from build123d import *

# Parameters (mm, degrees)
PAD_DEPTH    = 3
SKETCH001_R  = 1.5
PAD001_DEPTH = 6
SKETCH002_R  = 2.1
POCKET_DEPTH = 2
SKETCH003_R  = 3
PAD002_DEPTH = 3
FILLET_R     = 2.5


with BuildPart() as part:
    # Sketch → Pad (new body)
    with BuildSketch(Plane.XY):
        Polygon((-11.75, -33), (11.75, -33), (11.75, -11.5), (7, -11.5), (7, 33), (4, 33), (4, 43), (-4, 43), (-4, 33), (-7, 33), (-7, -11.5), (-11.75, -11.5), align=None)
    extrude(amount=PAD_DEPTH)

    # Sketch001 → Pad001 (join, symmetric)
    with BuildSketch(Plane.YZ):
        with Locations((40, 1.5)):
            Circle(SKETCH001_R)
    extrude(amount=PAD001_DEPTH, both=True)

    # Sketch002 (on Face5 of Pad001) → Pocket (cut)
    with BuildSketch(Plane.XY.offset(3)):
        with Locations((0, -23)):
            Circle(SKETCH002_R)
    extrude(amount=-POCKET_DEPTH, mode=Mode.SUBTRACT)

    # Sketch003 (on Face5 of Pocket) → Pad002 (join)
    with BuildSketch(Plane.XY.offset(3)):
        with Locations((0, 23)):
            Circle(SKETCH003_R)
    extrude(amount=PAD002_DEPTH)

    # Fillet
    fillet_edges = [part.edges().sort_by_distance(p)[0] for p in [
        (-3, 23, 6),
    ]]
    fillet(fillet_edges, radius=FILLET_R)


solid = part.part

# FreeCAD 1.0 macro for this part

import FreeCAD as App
import Part
import Sketcher
from FreeCAD import Vector
Q = App.Units.Quantity


def edges_at(feature, points):
    """Names of the edges that pass closest to the given points."""
    edges = feature.Shape.Edges
    near = lambda p: min(range(len(edges)), key=lambda i: edges[i].distToShape(Part.Vertex(*p))[0])
    return sorted({f"Edge{near(p) + 1}" for p in points})

doc = App.newDocument("Part")
body = doc.addObject("PartDesign::Body", "Body")

sketch1 = body.newObject("Sketcher::SketchObject", "Sketch")
sketch1.AttachmentSupport = (doc.getObject("XY_Plane"), [""])
sketch1.MapMode = "FlatFace"
sketch1.addGeometry([
    Part.LineSegment(Vector(-11.8, -33, 0), Vector(11.8, -33, 0)),
    Part.LineSegment(Vector(11.8, -33, 0), Vector(11.8, -11.5, 0)),
    Part.LineSegment(Vector(11.8, -11.5, 0), Vector(7, -11.5, 0)),
    Part.LineSegment(Vector(7, -11.5, 0), Vector(7, 33, 0)),
    Part.LineSegment(Vector(7, 33, 0), Vector(4, 33, 0)),
    Part.LineSegment(Vector(4, 33, 0), Vector(4, 43, 0)),
    Part.LineSegment(Vector(4, 43, 0), Vector(-4, 43, 0)),
    Part.LineSegment(Vector(-4, 43, 0), Vector(-4, 33, 0)),
    Part.LineSegment(Vector(-4, 33, 0), Vector(-7, 33, 0)),
    Part.LineSegment(Vector(-7, 33, 0), Vector(-7, -11.5, 0)),
    Part.LineSegment(Vector(-7, -11.5, 0), Vector(-11.8, -11.5, 0)),
    Part.LineSegment(Vector(-11.8, -11.5, 0), Vector(-11.8, -33, 0)),
], False)
sketch1.addConstraint([
    Sketcher.Constraint("Coincident", 0, 2, 1, 1),
    Sketcher.Constraint("Coincident", 1, 2, 2, 1),
    Sketcher.Constraint("Coincident", 2, 2, 3, 1),
    Sketcher.Constraint("Coincident", 3, 2, 4, 1),
    Sketcher.Constraint("Coincident", 4, 2, 5, 1),
    Sketcher.Constraint("Coincident", 5, 2, 6, 1),
    Sketcher.Constraint("Coincident", 6, 2, 7, 1),
    Sketcher.Constraint("Coincident", 7, 2, 8, 1),
    Sketcher.Constraint("Coincident", 8, 2, 9, 1),
    Sketcher.Constraint("Coincident", 9, 2, 10, 1),
    Sketcher.Constraint("Coincident", 10, 2, 11, 1),
    Sketcher.Constraint("Coincident", 11, 2, 0, 1),
    Sketcher.Constraint("Horizontal", 0),
    Sketcher.Constraint("Vertical", 1),
    Sketcher.Constraint("Horizontal", 2),
    Sketcher.Constraint("Vertical", 3),
    Sketcher.Constraint("Horizontal", 4),
    Sketcher.Constraint("Vertical", 5),
    Sketcher.Constraint("Horizontal", 6),
    Sketcher.Constraint("Vertical", 7),
    Sketcher.Constraint("Horizontal", 8),
    Sketcher.Constraint("Vertical", 9),
    Sketcher.Constraint("Horizontal", 10),
    Sketcher.Constraint("Vertical", 11),
    Sketcher.Constraint("Symmetric", 4, 2, 7, 2, -2),
    Sketcher.Constraint("Symmetric", 2, 2, 9, 2, -2),
    Sketcher.Constraint("Equal", 2, 10),
    Sketcher.Constraint("DistanceX", 4, 2, 4, 1, Q("3 mm")),
    Sketcher.Constraint("DistanceX", 6, 2, 6, 1, Q("8 mm")),
    Sketcher.Constraint("DistanceY", 5, 1, 5, 2, Q("10 mm")),
    Sketcher.Constraint("DistanceX", 0, 1, 0, 2, Q("23.5 mm")),
    Sketcher.Constraint("DistanceY", 1, 1, 1, 2, Q("21.5 mm")),
    Sketcher.Constraint("DistanceY", 3, 1, 3, 2, Q("44.5 mm")),
    Sketcher.Constraint("DistanceY", 0, 2, -1, 1, Q("33 mm")),
])
pad1 = body.newObject("PartDesign::Pad", "Pad")
pad1.Profile = sketch1
pad1.Length = 3

sketch2 = body.newObject("Sketcher::SketchObject", "Sketch001")
sketch2.AttachmentSupport = (doc.getObject("YZ_Plane"), [""])
sketch2.MapMode = "FlatFace"
sketch2.addGeometry(Part.Circle(Vector(40, 1.5, 0), Vector(0, 0, 1), 1.5), False)
sketch2.addConstraint([
    Sketcher.Constraint("Diameter", 0, Q("3 mm")),
    Sketcher.Constraint("DistanceX", -1, 1, 0, 3, Q("40 mm")),
    Sketcher.Constraint("DistanceY", -1, 1, 0, 3, Q("1.5 mm")),
])
pad2 = body.newObject("PartDesign::Pad", "Pad001")
pad2.Profile = sketch2
pad2.Length = 12
pad2.Midplane = True

sketch3 = body.newObject("Sketcher::SketchObject", "Sketch002")
sketch3.AttachmentSupport = (doc.getObject("XY_Plane"), [""])
sketch3.MapMode = "FlatFace"
sketch3.AttachmentOffset = App.Placement(Vector(0, 0, 3), App.Rotation())
sketch3.addGeometry(Part.Circle(Vector(0, -23, 0), Vector(0, 0, 1), 2.1), False)
sketch3.addConstraint([
    Sketcher.Constraint("PointOnObject", 0, 3, -2),
    Sketcher.Constraint("Diameter", 0, Q("4.2 mm")),
    Sketcher.Constraint("DistanceY", 0, 3, -1, 1, Q("23 mm")),
])
pocket1 = body.newObject("PartDesign::Pocket", "Pocket")
pocket1.Profile = sketch3
pocket1.Length = 2

sketch4 = body.newObject("Sketcher::SketchObject", "Sketch003")
sketch4.AttachmentSupport = (doc.getObject("XY_Plane"), [""])
sketch4.MapMode = "FlatFace"
sketch4.AttachmentOffset = App.Placement(Vector(0, 0, 3), App.Rotation())
sketch4.addGeometry(Part.Circle(Vector(0, 23, 0), Vector(0, 0, 1), 3), False)
sketch4.addConstraint([
    Sketcher.Constraint("PointOnObject", 0, 3, -2),
    Sketcher.Constraint("Diameter", 0, Q("6 mm")),
    Sketcher.Constraint("DistanceY", -1, 1, 0, 3, Q("23 mm")),
])
pad3 = body.newObject("PartDesign::Pad", "Pad002")
pad3.Profile = sketch4
pad3.Length = 3
doc.recompute()

fillet = body.newObject("PartDesign::Fillet", "Fillet")
fillet.Base = (pad3, edges_at(pad3, [(-3, 23, 6)]))
fillet.Radius = 2.5

doc.recompute()
